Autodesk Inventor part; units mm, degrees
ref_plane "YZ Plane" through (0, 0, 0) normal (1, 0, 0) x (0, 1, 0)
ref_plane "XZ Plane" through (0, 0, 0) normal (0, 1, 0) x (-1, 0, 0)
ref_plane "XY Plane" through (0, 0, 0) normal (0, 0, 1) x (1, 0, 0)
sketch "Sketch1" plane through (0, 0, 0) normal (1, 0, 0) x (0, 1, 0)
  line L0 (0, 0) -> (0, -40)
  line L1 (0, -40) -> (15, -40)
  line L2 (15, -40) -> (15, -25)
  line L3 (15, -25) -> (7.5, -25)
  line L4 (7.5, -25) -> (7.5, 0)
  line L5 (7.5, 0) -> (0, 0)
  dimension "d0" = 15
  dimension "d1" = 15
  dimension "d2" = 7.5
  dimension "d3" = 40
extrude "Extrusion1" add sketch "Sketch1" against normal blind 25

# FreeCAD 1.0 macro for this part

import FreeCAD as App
import Part
import Sketcher
Q = App.Units.Quantity

doc = App.newDocument("Part")
body = doc.addObject("PartDesign::Body", "Body")

sketch1 = doc.addObject("Sketcher::SketchObject", "Sketch")
body.addObject(sketch1)
sketch1.AttachmentSupport = (doc.YZ_Plane, [""])
sketch1.MapMode = "FlatFace"
sketch1.addGeometry([
    Part.LineSegment(App.Vector(7.5, 0, 0), App.Vector(0, 0, 0)),
    Part.LineSegment(App.Vector(0, 0, 0), App.Vector(0, -40, 0)),
    Part.LineSegment(App.Vector(0, -40, 0), App.Vector(15, -40, 0)),
    Part.LineSegment(App.Vector(15, -40, 0), App.Vector(15, -25, 0)),
    Part.LineSegment(App.Vector(15, -25, 0), App.Vector(7.5, -25, 0)),
    Part.LineSegment(App.Vector(7.5, -25, 0), App.Vector(7.5, 0, 0)),
], False)
sketch1.addConstraint([
    Sketcher.Constraint("Coincident", 0, 2, 1, 1),
    Sketcher.Constraint("Coincident", 1, 2, 2, 1),
    Sketcher.Constraint("Coincident", 2, 2, 3, 1),
    Sketcher.Constraint("Coincident", 3, 2, 4, 1),
    Sketcher.Constraint("Coincident", 4, 2, 5, 1),
    Sketcher.Constraint("Coincident", 5, 2, 0, 1),
    Sketcher.Constraint("Horizontal", 0),
    Sketcher.Constraint("Vertical", 1),
    Sketcher.Constraint("Horizontal", 2),
    Sketcher.Constraint("Vertical", 3),
    Sketcher.Constraint("Horizontal", 4),
    Sketcher.Constraint("Vertical", 5),
    Sketcher.Constraint("Coincident", 0, 2, -1, 1),
    Sketcher.Constraint("Equal", 0, 4),
    Sketcher.Constraint("Equal", 2, 3),
    Sketcher.Constraint("DistanceX", 2, 1, 2, 2, Q("15 mm")),
    Sketcher.Constraint("DistanceY", 1, 2, 1, 1, Q("40 mm")),
])
pad1 = doc.addObject("PartDesign::Pad", "Pad")
body.addObject(pad1)
pad1.Profile = sketch1
pad1.Length = 25
pad1.Reversed = True

doc.recompute()
